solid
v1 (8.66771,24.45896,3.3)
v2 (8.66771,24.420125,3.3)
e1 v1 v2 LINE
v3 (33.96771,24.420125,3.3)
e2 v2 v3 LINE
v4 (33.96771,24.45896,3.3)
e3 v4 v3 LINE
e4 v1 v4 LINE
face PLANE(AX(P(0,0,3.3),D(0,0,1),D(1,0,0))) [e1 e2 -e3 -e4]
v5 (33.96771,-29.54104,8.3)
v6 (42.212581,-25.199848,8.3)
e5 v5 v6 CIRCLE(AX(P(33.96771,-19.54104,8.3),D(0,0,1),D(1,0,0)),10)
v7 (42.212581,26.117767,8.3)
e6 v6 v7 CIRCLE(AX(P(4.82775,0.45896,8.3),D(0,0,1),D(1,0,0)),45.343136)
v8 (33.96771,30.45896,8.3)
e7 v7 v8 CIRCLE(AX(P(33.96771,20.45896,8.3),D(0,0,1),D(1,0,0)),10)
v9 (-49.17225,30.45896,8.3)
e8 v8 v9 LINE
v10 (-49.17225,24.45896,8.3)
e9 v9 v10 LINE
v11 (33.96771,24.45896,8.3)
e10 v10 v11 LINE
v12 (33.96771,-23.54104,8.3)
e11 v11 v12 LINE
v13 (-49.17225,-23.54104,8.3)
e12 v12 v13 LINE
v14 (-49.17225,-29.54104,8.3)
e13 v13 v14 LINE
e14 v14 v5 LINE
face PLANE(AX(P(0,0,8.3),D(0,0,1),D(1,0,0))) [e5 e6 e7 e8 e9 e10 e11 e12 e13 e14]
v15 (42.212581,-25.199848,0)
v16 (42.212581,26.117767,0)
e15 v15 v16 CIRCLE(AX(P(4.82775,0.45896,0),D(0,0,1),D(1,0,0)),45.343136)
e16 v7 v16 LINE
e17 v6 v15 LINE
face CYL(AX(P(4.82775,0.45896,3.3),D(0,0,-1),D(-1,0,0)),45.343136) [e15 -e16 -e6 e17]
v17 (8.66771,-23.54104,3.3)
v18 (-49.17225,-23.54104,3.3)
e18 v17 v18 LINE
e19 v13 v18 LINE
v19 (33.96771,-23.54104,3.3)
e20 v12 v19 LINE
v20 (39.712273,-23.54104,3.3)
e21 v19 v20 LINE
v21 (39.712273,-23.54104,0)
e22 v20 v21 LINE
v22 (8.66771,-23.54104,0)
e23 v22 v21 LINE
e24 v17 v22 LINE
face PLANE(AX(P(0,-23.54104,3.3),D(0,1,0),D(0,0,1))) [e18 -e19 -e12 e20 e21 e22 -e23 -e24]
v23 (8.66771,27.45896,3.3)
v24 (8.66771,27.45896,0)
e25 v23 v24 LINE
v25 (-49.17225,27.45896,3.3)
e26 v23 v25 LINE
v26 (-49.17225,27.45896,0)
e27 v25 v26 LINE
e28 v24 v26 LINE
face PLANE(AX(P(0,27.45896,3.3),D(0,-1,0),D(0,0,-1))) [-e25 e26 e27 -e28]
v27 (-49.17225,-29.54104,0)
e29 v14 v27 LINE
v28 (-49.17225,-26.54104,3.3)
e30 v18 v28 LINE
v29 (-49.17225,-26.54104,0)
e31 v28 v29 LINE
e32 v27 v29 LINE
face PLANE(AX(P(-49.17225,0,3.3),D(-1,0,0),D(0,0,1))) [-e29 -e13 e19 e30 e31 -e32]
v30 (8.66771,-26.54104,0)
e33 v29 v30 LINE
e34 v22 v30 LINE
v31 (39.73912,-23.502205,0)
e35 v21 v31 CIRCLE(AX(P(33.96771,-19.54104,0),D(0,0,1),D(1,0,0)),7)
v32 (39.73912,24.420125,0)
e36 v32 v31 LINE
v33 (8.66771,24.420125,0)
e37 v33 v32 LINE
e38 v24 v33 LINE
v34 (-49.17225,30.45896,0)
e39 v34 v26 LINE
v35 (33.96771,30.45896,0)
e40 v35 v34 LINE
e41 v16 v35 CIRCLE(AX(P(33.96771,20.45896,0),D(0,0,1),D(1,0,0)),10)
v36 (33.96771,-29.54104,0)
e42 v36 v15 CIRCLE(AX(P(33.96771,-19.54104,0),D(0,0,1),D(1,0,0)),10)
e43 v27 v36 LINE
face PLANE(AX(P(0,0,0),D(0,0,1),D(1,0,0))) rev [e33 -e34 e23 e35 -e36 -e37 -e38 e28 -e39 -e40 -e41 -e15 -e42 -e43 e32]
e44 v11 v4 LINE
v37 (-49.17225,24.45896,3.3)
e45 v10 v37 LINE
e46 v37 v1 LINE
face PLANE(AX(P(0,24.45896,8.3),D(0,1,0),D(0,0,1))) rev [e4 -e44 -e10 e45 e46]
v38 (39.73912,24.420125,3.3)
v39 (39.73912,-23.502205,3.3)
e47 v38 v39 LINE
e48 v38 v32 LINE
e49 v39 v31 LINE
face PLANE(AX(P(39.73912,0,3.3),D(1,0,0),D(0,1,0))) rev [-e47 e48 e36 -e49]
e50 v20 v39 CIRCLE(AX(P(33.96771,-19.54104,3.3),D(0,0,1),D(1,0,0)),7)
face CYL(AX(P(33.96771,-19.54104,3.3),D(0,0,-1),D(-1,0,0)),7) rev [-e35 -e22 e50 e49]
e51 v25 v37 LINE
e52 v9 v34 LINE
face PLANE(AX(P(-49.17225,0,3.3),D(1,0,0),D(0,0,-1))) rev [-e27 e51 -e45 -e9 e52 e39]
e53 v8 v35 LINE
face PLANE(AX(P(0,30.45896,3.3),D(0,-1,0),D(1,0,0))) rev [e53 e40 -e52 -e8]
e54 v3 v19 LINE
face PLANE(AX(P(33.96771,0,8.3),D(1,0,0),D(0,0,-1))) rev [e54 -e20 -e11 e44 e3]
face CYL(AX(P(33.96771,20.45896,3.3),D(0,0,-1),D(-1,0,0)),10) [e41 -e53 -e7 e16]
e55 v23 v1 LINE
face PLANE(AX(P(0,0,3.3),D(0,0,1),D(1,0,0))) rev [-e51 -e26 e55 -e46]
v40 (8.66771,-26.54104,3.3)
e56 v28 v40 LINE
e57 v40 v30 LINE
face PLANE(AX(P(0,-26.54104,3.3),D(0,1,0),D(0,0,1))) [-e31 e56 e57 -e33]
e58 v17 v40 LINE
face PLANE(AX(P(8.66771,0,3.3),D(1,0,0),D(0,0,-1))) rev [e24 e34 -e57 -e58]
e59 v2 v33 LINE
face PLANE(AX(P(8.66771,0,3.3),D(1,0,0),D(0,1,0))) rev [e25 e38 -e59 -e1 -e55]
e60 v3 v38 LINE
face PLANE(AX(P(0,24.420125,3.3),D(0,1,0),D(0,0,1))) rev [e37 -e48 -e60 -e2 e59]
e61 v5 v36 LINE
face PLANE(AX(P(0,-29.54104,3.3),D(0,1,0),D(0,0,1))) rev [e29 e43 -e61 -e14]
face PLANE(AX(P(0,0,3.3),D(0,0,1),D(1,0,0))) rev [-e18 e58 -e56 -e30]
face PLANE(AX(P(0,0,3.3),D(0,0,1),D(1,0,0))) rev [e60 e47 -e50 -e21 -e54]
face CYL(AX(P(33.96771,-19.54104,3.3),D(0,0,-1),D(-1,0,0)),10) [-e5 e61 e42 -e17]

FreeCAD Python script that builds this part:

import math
import FreeCAD as App
import Part
import Sketcher

V = App.Vector
Q = App.Units.Quantity

doc = App.newDocument("Part")
params = doc.addObject("Spreadsheet::Sheet", "Params")
for row, (alias, value) in enumerate([
    ("sketch1_radius", "10 mm"),
    ("sketch1_height", "3 mm"),
    ("pad1_length", "3.3 mm"),
    ("sketch2_radius", "10 mm"),
    ("sketch2_height", "6 mm"),
    ("sketch2_height2", "3 mm"),
    ("sketch2_height3", "48 mm"),
    ("pad2_length", "5 mm"),
], start=1):
    params.set(f"A{row}", alias)
    params.set(f"B{row}", "=" + value)
    params.setAlias(f"B{row}", alias)

body = doc.addObject("PartDesign::Body", "Body")

sketch1 = body.newObject("Sketcher::SketchObject", "Sketch")
sketch1.AttachmentSupport = (doc.getObject("XY_Plane"), [""])
sketch1.MapMode = "FlatFace"
sketch1.addGeometry([
    Part.LineSegment(V(-49.17225, -26.54104, 0), V(-49.17225, -29.54104, 0)),
    Part.LineSegment(V(-49.17225, -29.54104, 0), V(33.96771, -29.54104, 0)),
    Part.ArcOfCircle(Part.Circle(V(33.96771, -19.54104, 0), V(0, 0, 1), 10), math.radians(-90), math.radians(-34.463474)),
    Part.ArcOfCircle(Part.Circle(V(4.82775, 0.45896, 0), V(0, 0, 1), 45.343136), math.radians(-34.463474), math.radians(34.463474)),
    Part.ArcOfCircle(Part.Circle(V(33.96771, 20.45896, 0), V(0, 0, 1), 10), math.radians(34.463474), math.radians(90)),
    Part.LineSegment(V(33.96771, 30.45896, 0), V(-49.17225, 30.45896, 0)),
    Part.LineSegment(V(-49.17225, 30.45896, 0), V(-49.17225, 27.45896, 0)),
    Part.LineSegment(V(-49.17225, 27.45896, 0), V(8.66771, 27.45896, 0)),
    Part.LineSegment(V(8.66771, 27.45896, 0), V(8.66771, 24.420125, 0)),
    Part.LineSegment(V(8.66771, 24.420125, 0), V(39.73912, 24.420125, 0)),
    Part.LineSegment(V(39.73912, 24.420125, 0), V(39.73912, -23.502205, 0)),
    Part.ArcOfCircle(Part.Circle(V(33.967708, -19.541038, 0), V(0, 0, 1), 7.000003), math.radians(-34.849904), math.radians(-34.463474)),
    Part.LineSegment(V(39.712273, -23.54104, 0), V(8.66771, -23.54104, 0)),
    Part.LineSegment(V(8.66771, -23.54104, 0), V(8.66771, -26.54104, 0)),
    Part.LineSegment(V(8.66771, -26.54104, 0), V(-49.17225, -26.54104, 0)),
], False)
sketch1.addConstraint([
    Sketcher.Constraint("Coincident", 0, 2, 1, 1),
    Sketcher.Constraint("Tangent", 1, 2, 2, 1),
    Sketcher.Constraint("Tangent", 2, 2, 3, 1),
    Sketcher.Constraint("Tangent", 3, 2, 4, 1),
    Sketcher.Constraint("Tangent", 4, 2, 5, 1),
    Sketcher.Constraint("Coincident", 5, 2, 6, 1),
    Sketcher.Constraint("Coincident", 6, 2, 7, 1),
    Sketcher.Constraint("Coincident", 7, 2, 8, 1),
    Sketcher.Constraint("Coincident", 8, 2, 9, 1),
    Sketcher.Constraint("Coincident", 9, 2, 10, 1),
    Sketcher.Constraint("Coincident", 10, 2, 11, 2),
    Sketcher.Constraint("Coincident", 11, 1, 12, 1),
    Sketcher.Constraint("Coincident", 12, 2, 13, 1),
    Sketcher.Constraint("Coincident", 13, 2, 14, 1),
    Sketcher.Constraint("Coincident", 14, 2, 0, 1),
    Sketcher.Constraint("Vertical", 0),
    Sketcher.Constraint("Horizontal", 1),
    Sketcher.Constraint("Horizontal", 5),
    Sketcher.Constraint("Vertical", 6),
    Sketcher.Constraint("Horizontal", 7),
    Sketcher.Constraint("Vertical", 8),
    Sketcher.Constraint("Horizontal", 9),
    Sketcher.Constraint("Vertical", 10),
    Sketcher.Constraint("Horizontal", 12),
    Sketcher.Constraint("Vertical", 13),
    Sketcher.Constraint("Horizontal", 14),
    Sketcher.Constraint("Coincident", 11, 3, 2, 3),
    Sketcher.Constraint("Equal", 2, 4),
    Sketcher.Constraint("Vertical", 2, 3, 4, 3),
    Sketcher.Constraint("Vertical", 0, 2, 5, 2),
    Sketcher.Constraint("Vertical", 8, 2, 12, 2),
    Sketcher.Constraint("Equal", 0, 6),
    Sketcher.Constraint("Equal", 6, 13),
    Sketcher.Constraint("Radius", 2, Q("10 mm")),
    Sketcher.Constraint("DistanceY", 0, 2, 0, 1, Q("3 mm")),
    Sketcher.Constraint("DistanceY", 2, 3, 3, 3, Q("20 mm")),
    Sketcher.Constraint("DistanceX", 0, 2, 3, 3, Q("54 mm")),
    Sketcher.Constraint("DistanceX", 7, 2, 4, 2, Q("25.3 mm")),
    Sketcher.Constraint("Radius", 3, Q("45.343136 mm")),
    Sketcher.Constraint("Radius", 11, Q("7.000003 mm")),
    Sketcher.Constraint("DistanceX", 9, 1, 9, 2, Q("31.07141 mm")),
    Sketcher.Constraint("DistanceY", 10, 2, 10, 1, Q("47.92233 mm")),
    Sketcher.Constraint("DistanceX", -1, 1, 2, 3, Q("33.96771 mm")),
    Sketcher.Constraint("DistanceY", 2, 3, -1, 1, Q("19.54104 mm")),
])
sketch1.setExpression("Constraints[33]", "Params.sketch1_radius")
sketch1.setExpression("Constraints[34]", "Params.sketch1_height")
pad1 = body.newObject("PartDesign::Pad", "Pad")
pad1.Profile = sketch1
pad1.setExpression("Length", "Params.pad1_length")

sketch2 = body.newObject("Sketcher::SketchObject", "Sketch001")
sketch2.AttachmentSupport = (doc.getObject("XY_Plane"), [""])
sketch2.MapMode = "FlatFace"
sketch2.AttachmentOffset = App.Placement(V(0, 0, 3.3), App.Rotation())
sketch2.addGeometry([
    Part.LineSegment(V(-49.17225, -23.54104, 0), V(-49.17225, -29.54104, 0)),
    Part.LineSegment(V(-49.17225, -29.54104, 0), V(33.96771, -29.54104, 0)),
    Part.ArcOfCircle(Part.Circle(V(33.96771, -19.54104, 0), V(0, 0, 1), 10), math.radians(-90), math.radians(-34.463474)),
    Part.ArcOfCircle(Part.Circle(V(4.82775, 0.45896, 0), V(0, 0, 1), 45.343136), math.radians(-34.463474), math.radians(34.463474)),
    Part.ArcOfCircle(Part.Circle(V(33.96771, 20.45896, 0), V(0, 0, 1), 10), math.radians(34.463474), math.radians(90)),
    Part.LineSegment(V(33.96771, 30.45896, 0), V(-49.17225, 30.45896, 0)),
    Part.LineSegment(V(-49.17225, 30.45896, 0), V(-49.17225, 27.45896, 0)),
    Part.LineSegment(V(-49.17225, 27.45896, 0), V(-49.17225, 24.45896, 0)),
    Part.LineSegment(V(-49.17225, 24.45896, 0), V(33.96771, 24.45896, 0)),
    Part.LineSegment(V(33.96771, 24.45896, 0), V(33.96771, -23.54104, 0)),
    Part.LineSegment(V(33.96771, -23.54104, 0), V(-49.17225, -23.54104, 0)),
], False)
sketch2.addConstraint([
    Sketcher.Constraint("Coincident", 0, 2, 1, 1),
    Sketcher.Constraint("Tangent", 1, 2, 2, 1),
    Sketcher.Constraint("Tangent", 2, 2, 3, 1),
    Sketcher.Constraint("Tangent", 3, 2, 4, 1),
    Sketcher.Constraint("Tangent", 4, 2, 5, 1),
    Sketcher.Constraint("Coincident", 5, 2, 6, 1),
    Sketcher.Constraint("Coincident", 6, 2, 7, 1),
    Sketcher.Constraint("Coincident", 7, 2, 8, 1),
    Sketcher.Constraint("Coincident", 8, 2, 9, 1),
    Sketcher.Constraint("Coincident", 9, 2, 10, 1),
    Sketcher.Constraint("Coincident", 10, 2, 0, 1),
    Sketcher.Constraint("Vertical", 0),
    Sketcher.Constraint("Horizontal", 1),
    Sketcher.Constraint("Horizontal", 5),
    Sketcher.Constraint("Vertical", 6),
    Sketcher.Constraint("Vertical", 7),
    Sketcher.Constraint("Horizontal", 8),
    Sketcher.Constraint("Vertical", 9),
    Sketcher.Constraint("Horizontal", 10),
    Sketcher.Constraint("Equal", 2, 4),
    Sketcher.Constraint("Vertical", 2, 3, 4, 3),
    Sketcher.Constraint("Vertical", 0, 2, 5, 2),
    Sketcher.Constraint("Vertical", 4, 2, 8, 2),
    Sketcher.Constraint("Equal", 6, 7),
    Sketcher.Constraint("Radius", 2, Q("10 mm")),
    Sketcher.Constraint("DistanceY", 0, 2, 0, 1, Q("6 mm")),
    Sketcher.Constraint("DistanceY", 6, 2, 6, 1, Q("3 mm")),
    Sketcher.Constraint("DistanceY", 9, 2, 9, 1, Q("48 mm")),
    Sketcher.Constraint("DistanceX", 0, 2, 3, 3, Q("54 mm")),
    Sketcher.Constraint("Radius", 3, Q("45.343136 mm")),
    Sketcher.Constraint("DistanceX", -1, 1, 2, 3, Q("33.96771 mm")),
    Sketcher.Constraint("DistanceY", 2, 3, -1, 1, Q("19.54104 mm")),
])
sketch2.setExpression("Constraints[24]", "Params.sketch2_radius")
sketch2.setExpression("Constraints[25]", "Params.sketch2_height")
sketch2.setExpression("Constraints[26]", "Params.sketch2_height2")
sketch2.setExpression("Constraints[27]", "Params.sketch2_height3")
pad2 = body.newObject("PartDesign::Pad", "Pad001")
pad2.Profile = sketch2
pad2.setExpression("Length", "Params.pad2_length")

doc.recompute()
